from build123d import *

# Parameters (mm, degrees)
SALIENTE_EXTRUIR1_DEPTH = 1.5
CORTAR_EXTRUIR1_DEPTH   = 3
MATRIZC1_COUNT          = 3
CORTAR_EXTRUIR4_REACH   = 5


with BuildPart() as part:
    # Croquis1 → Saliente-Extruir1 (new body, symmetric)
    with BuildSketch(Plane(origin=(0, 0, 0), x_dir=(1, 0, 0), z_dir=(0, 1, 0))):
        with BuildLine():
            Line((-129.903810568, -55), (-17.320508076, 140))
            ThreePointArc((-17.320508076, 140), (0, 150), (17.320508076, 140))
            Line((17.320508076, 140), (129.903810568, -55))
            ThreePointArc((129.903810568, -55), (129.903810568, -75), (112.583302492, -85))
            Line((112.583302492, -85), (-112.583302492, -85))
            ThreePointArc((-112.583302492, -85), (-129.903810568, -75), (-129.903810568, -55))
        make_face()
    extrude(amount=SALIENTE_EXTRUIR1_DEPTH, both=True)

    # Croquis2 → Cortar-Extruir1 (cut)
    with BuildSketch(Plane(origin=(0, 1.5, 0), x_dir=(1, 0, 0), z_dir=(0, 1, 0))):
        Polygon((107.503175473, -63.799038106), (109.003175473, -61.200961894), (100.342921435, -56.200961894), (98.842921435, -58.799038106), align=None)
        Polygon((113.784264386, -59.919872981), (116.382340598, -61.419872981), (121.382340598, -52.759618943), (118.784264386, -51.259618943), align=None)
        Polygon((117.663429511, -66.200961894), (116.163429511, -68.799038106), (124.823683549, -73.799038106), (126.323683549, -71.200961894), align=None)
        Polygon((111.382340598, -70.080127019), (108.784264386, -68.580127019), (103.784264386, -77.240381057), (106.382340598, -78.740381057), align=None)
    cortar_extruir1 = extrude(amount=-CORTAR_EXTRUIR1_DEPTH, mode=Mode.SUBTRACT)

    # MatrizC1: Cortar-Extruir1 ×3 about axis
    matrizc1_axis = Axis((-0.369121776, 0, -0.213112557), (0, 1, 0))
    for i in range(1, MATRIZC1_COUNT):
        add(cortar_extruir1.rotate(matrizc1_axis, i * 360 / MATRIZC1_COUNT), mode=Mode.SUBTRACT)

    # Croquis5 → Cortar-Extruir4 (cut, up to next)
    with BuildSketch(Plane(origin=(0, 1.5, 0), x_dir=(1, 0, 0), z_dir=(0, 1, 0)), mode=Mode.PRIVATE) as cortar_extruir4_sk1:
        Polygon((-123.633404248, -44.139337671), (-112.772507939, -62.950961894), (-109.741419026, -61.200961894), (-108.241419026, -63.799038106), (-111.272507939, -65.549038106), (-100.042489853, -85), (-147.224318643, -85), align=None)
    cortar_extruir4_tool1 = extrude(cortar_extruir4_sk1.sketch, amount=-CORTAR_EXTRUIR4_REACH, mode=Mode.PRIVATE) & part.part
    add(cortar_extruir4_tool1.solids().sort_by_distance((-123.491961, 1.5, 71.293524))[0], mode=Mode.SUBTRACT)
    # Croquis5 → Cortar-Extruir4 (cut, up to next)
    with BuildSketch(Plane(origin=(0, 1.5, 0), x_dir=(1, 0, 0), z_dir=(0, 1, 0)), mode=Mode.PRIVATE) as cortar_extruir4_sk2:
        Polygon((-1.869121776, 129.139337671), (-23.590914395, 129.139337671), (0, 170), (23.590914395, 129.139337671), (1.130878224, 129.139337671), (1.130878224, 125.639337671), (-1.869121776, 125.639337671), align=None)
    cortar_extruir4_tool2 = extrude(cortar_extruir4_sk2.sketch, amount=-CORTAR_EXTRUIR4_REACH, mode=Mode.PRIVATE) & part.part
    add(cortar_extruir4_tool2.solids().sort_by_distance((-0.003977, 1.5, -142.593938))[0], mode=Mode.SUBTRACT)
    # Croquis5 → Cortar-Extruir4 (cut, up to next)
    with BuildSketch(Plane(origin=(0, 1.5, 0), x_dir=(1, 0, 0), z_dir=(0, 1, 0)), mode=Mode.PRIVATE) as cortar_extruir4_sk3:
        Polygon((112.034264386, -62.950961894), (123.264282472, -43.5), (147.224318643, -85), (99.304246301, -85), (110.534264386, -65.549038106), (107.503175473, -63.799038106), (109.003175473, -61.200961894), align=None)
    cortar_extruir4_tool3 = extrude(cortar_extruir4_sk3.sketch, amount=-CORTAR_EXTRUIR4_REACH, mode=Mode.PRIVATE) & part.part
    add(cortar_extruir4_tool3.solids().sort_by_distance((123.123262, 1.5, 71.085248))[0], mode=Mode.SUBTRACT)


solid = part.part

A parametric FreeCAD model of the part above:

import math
import FreeCAD as App
import Part
import Sketcher
Q = App.Units.Quantity


def add_polygon(sketch, points):
    """Adds a closed chain of lines whose ends are joined by coincident constraints."""
    first, n = sketch.GeometryCount, len(points)
    for a, b in zip(points, points[1:] + points[:1]):
        sketch.addGeometry(Part.LineSegment(App.Vector(*a, 0), App.Vector(*b, 0)), False)
    for i in range(n):
        sketch.addConstraint(Sketcher.Constraint("Coincident", first + i, 2, first + (i + 1) % n, 1))

doc = App.newDocument("Part")
body = doc.addObject("PartDesign::Body", "Body")

# Sketch on XZ plane
sketch1 = body.newObject("Sketcher::SketchObject", "Sketch")
sketch1.AttachmentSupport = (doc.getObject("XZ_Plane"), [""])
sketch1.MapMode = "FlatFace"
sketch1.addGeometry(Part.LineSegment(App.Vector(-17, -140, 0), App.Vector(-130, 55, 0)), False)
sketch1.addGeometry(Part.ArcOfCircle(Part.Circle(App.Vector(-113, 65, 0), App.Vector(0, 0, 1), 20), math.radians(90), math.radians(210)), False)
sketch1.addGeometry(Part.LineSegment(App.Vector(-113, 85, 0), App.Vector(113, 85, 0)), False)
sketch1.addGeometry(Part.ArcOfCircle(Part.Circle(App.Vector(113, 65, 0), App.Vector(0, 0, 1), 20), math.radians(-30), math.radians(90)), False)
sketch1.addGeometry(Part.LineSegment(App.Vector(130, 55, 0), App.Vector(17, -140, 0)), False)
sketch1.addGeometry(Part.ArcOfCircle(Part.Circle(App.Vector(0, -130, 0), App.Vector(0, 0, 1), 20), math.radians(-150), math.radians(-30)), False)
sketch1.addConstraint(Sketcher.Constraint("Tangent", 0, 2, 1, 2))
sketch1.addConstraint(Sketcher.Constraint("Tangent", 1, 1, 2, 1))
sketch1.addConstraint(Sketcher.Constraint("Tangent", 2, 2, 3, 2))
sketch1.addConstraint(Sketcher.Constraint("Tangent", 3, 1, 4, 1))
sketch1.addConstraint(Sketcher.Constraint("Tangent", 4, 2, 5, 2))
sketch1.addConstraint(Sketcher.Constraint("Tangent", 5, 1, 0, 1))
sketch1.addConstraint(Sketcher.Constraint("Horizontal", 2))
sketch1.addConstraint(Sketcher.Constraint("Equal", 1, 3))
sketch1.addConstraint(Sketcher.Constraint("Equal", 3, 5))
sketch1.addConstraint(Sketcher.Constraint("Symmetric", 0, 2, 3, 1, -2))
sketch1.addConstraint(Sketcher.Constraint("Radius", 1, Q("20 mm")))
sketch1.addConstraint(Sketcher.Constraint("Angle", 0, Q("120 deg")))
sketch1.addConstraint(Sketcher.Constraint("DistanceY", -1, 1, 1, 3, Q("65 mm")))
sketch1.addConstraint(Sketcher.Constraint("DistanceY", 5, 3, -1, 1, Q("130 mm")))
pad1 = body.newObject("PartDesign::Pad", "Pad")
pad1.Profile = sketch1
pad1.Length = 3
pad1.Midplane = True

# Sketch on XZ plane
sketch2 = body.newObject("Sketcher::SketchObject", "Sketch001")
sketch2.AttachmentSupport = (doc.getObject("XZ_Plane"), [""])
sketch2.MapMode = "FlatFace"
sketch2.AttachmentOffset = App.Placement(App.Vector(0, 0, -1.5), App.Rotation())
add_polygon(sketch2, [(107.5, 63.8), (109, 61.2), (100.3, 56.2), (98.8, 58.8)])  # lines 0-3
add_polygon(sketch2, [(113.8, 59.9), (116.4, 61.4), (121.4, 52.8), (118.8, 51.3)])  # lines 4-7
add_polygon(sketch2, [(117.7, 66.2), (116.2, 68.8), (124.8, 73.8), (126.3, 71.2)])  # lines 8-11
add_polygon(sketch2, [(111.4, 70.1), (108.8, 68.6), (103.8, 77.2), (106.4, 78.7)])  # lines 12-15
sketch2.addConstraint(Sketcher.Constraint("Perpendicular", 0, 1))
sketch2.addConstraint(Sketcher.Constraint("Perpendicular", 1, 2))
sketch2.addConstraint(Sketcher.Constraint("Perpendicular", 2, 3))
sketch2.addConstraint(Sketcher.Constraint("Parallel", 3, 4))
sketch2.addConstraint(Sketcher.Constraint("Perpendicular", 4, 5))
sketch2.addConstraint(Sketcher.Constraint("Perpendicular", 5, 6))
sketch2.addConstraint(Sketcher.Constraint("Perpendicular", 6, 7))
sketch2.addConstraint(Sketcher.Constraint("Parallel", 7, 8))
sketch2.addConstraint(Sketcher.Constraint("Perpendicular", 8, 9))
sketch2.addConstraint(Sketcher.Constraint("Perpendicular", 9, 10))
sketch2.addConstraint(Sketcher.Constraint("Perpendicular", 10, 11))
sketch2.addConstraint(Sketcher.Constraint("Parallel", 11, 12))
sketch2.addConstraint(Sketcher.Constraint("Perpendicular", 12, 13))
sketch2.addConstraint(Sketcher.Constraint("Perpendicular", 13, 14))
sketch2.addConstraint(Sketcher.Constraint("Perpendicular", 14, 15))
sketch2.addConstraint(Sketcher.Constraint("Equal", 2, 4))
sketch2.addConstraint(Sketcher.Constraint("Equal", 3, 5))
sketch2.addConstraint(Sketcher.Constraint("Equal", 6, 8))
sketch2.addConstraint(Sketcher.Constraint("Equal", 7, 9))
sketch2.addConstraint(Sketcher.Constraint("Equal", 10, 12))
sketch2.addConstraint(Sketcher.Constraint("Equal", 11, 13))
sketch2.addConstraint(Sketcher.Constraint("Angle", 0, Q("-60 deg")))
sketch2.addConstraint(Sketcher.Constraint("Distance", 0, Q("3 mm")))
sketch2.addConstraint(Sketcher.Constraint("Distance", 1, Q("10 mm")))
sketch2.addConstraint(Sketcher.Constraint("DistanceY", 3, 2, 8, 2, Q("5 mm")))
sketch2.addConstraint(Sketcher.Constraint("DistanceX", 12, 2, 7, 2, Q("5 mm")))
sketch2.addConstraint(Sketcher.Constraint("DistanceY", -1, 1, 0, 2, Q("61.200962 mm")))
sketch2.addConstraint(Sketcher.Constraint("DistanceX", -1, 1, 1, 2, Q("100.342921 mm")))
sketch2.addConstraint(Sketcher.Constraint("DistanceX", -1, 1, 4, 2, Q("116.382341 mm")))
sketch2.addConstraint(Sketcher.Constraint("DistanceY", -1, 1, 5, 2, Q("52.759619 mm")))
sketch2.addConstraint(Sketcher.Constraint("DistanceX", -1, 1, 8, 2, Q("116.16343 mm")))
sketch2.addConstraint(Sketcher.Constraint("DistanceY", -1, 1, 13, 2, Q("77.240381 mm")))
pocket1 = body.newObject("PartDesign::Pocket", "Pocket")
pocket1.Profile = sketch2
pocket1.Length = 3
pocket1.Reversed = True
doc.recompute()

datumline = body.newObject("PartDesign::Line", "DatumLine")
datumline.Placement = App.Placement(App.Vector(-0.369122, 0, -0.213113), App.Rotation(App.Vector(0, 0, 1), App.Vector(0, 1, 0)))
polarpattern = body.newObject("PartDesign::PolarPattern", "PolarPattern")
polarpattern.Originals = [pocket1]
polarpattern.Axis = (datumline, [""])
polarpattern.Angle = 360
polarpattern.Occurrences = 3
body.Tip = polarpattern

# Sketch on XZ plane
sketch3 = body.newObject("Sketcher::SketchObject", "Sketch002")
sketch3.AttachmentSupport = (doc.getObject("XZ_Plane"), [""])
sketch3.MapMode = "FlatFace"
sketch3.AttachmentOffset = App.Placement(App.Vector(0, 0, -1.5), App.Rotation())
add_polygon(sketch3, [(-112.8, 63), (-123.6, 44.1), (-147.2, 85), (-100, 85), (-111.3, 65.5), (-108.2, 63.8), (-109.7, 61.2)])  # lines 0-6
sketch3.addConstraint(Sketcher.Constraint("Horizontal", 2))
sketch3.addConstraint(Sketcher.Constraint("Parallel", 0, 3))
sketch3.addConstraint(Sketcher.Constraint("Perpendicular", 3, 4))
sketch3.addConstraint(Sketcher.Constraint("Perpendicular", 4, 5))
sketch3.addConstraint(Sketcher.Constraint("Perpendicular", 5, 6))
sketch3.addConstraint(Sketcher.Constraint("Equal", 4, 6))
sketch3.addConstraint(Sketcher.Constraint("Angle", 0, Q("-120 deg")))
sketch3.addConstraint(Sketcher.Constraint("Angle", 1, Q("120 deg")))
sketch3.addConstraint(Sketcher.Constraint("Distance", 5, Q("3 mm")))
sketch3.addConstraint(Sketcher.Constraint("DistanceY", -1, 1, 1, 2, Q("85 mm")))
sketch3.addConstraint(Sketcher.Constraint("Distance", 4, Q("3.5 mm")))
sketch3.addConstraint(Sketcher.Constraint("DistanceX", 2, 1, 2, 2, Q("47.181829 mm")))
sketch3.addConstraint(Sketcher.Constraint("DistanceY", 0, 2, 3, 2, Q("21.4097 mm")))
sketch3.addConstraint(Sketcher.Constraint("DistanceX", 1, 2, -1, 1, Q("147.224319 mm")))
pocket2 = body.newObject("PartDesign::Pocket", "Pocket001")
pocket2.Profile = sketch3
pocket2.Length = 3
pocket2.Reversed = True

# Sketch on XZ plane
sketch4 = body.newObject("Sketcher::SketchObject", "Sketch003")
sketch4.AttachmentSupport = (doc.getObject("XZ_Plane"), [""])
sketch4.MapMode = "FlatFace"
sketch4.AttachmentOffset = App.Placement(App.Vector(0, 0, -1.5), App.Rotation())
add_polygon(sketch4, [(-23.6, -129.1), (-1.9, -129.1), (-1.9, -125.6), (1.1, -125.6), (1.1, -129.1), (23.6, -129.1), (0, -170)])  # lines 0-6
sketch4.addConstraint(Sketcher.Constraint("Horizontal", 0))
sketch4.addConstraint(Sketcher.Constraint("Vertical", 1))
sketch4.addConstraint(Sketcher.Constraint("Horizontal", 2))
sketch4.addConstraint(Sketcher.Constraint("Vertical", 3))
sketch4.addConstraint(Sketcher.Constraint("Horizontal", 4))
sketch4.addConstraint(Sketcher.Constraint("Symmetric", 4, 2, 6, 2, -2))
sketch4.addConstraint(Sketcher.Constraint("PointOnObject", 5, 2, -2))
sketch4.addConstraint(Sketcher.Constraint("DistanceX", 2, 1, 2, 2, Q("3 mm")))
sketch4.addConstraint(Sketcher.Constraint("Angle", 5, Q("-120 deg")))
sketch4.addConstraint(Sketcher.Constraint("DistanceY", 1, 1, 1, 2, Q("3.5 mm")))
sketch4.addConstraint(Sketcher.Constraint("DistanceY", 5, 2, -1, 1, Q("170 mm")))
sketch4.addConstraint(Sketcher.Constraint("Distance", 5, Q("47.181829 mm")))
sketch4.addConstraint(Sketcher.Constraint("DistanceX", 0, 1, 0, 2, Q("21.721793 mm")))
pocket3 = body.newObject("PartDesign::Pocket", "Pocket002")
pocket3.Profile = sketch4
pocket3.Length = 3
pocket3.Reversed = True

# Sketch on XZ plane
sketch5 = body.newObject("Sketcher::SketchObject", "Sketch004")
sketch5.AttachmentSupport = (doc.getObject("XZ_Plane"), [""])
sketch5.MapMode = "FlatFace"
sketch5.AttachmentOffset = App.Placement(App.Vector(0, 0, -1.5), App.Rotation())
add_polygon(sketch5, [(123.3, 43.5), (112, 63), (109, 61.2), (107.5, 63.8), (110.5, 65.5), (99.3, 85), (147.2, 85)])  # lines 0-6
sketch5.addConstraint(Sketcher.Constraint("Horizontal", 5))
sketch5.addConstraint(Sketcher.Constraint("Perpendicular", 0, 1))
sketch5.addConstraint(Sketcher.Constraint("Perpendicular", 1, 2))
sketch5.addConstraint(Sketcher.Constraint("Perpendicular", 2, 3))
sketch5.addConstraint(Sketcher.Constraint("Perpendicular", 3, 4))
sketch5.addConstraint(Sketcher.Constraint("Equal", 1, 3))
sketch5.addConstraint(Sketcher.Constraint("Equal", 0, 4))
sketch5.addConstraint(Sketcher.Constraint("Angle", 0, Q("120 deg")))
sketch5.addConstraint(Sketcher.Constraint("Angle", 6, Q("-120 deg")))
sketch5.addConstraint(Sketcher.Constraint("Distance", 2, Q("3 mm")))
sketch5.addConstraint(Sketcher.Constraint("DistanceY", -1, 1, 4, 2, Q("85 mm")))
sketch5.addConstraint(Sketcher.Constraint("Distance", 1, Q("3.5 mm")))
sketch5.addConstraint(Sketcher.Constraint("DistanceY", -1, 1, 6, 2, Q("43.5 mm")))
sketch5.addConstraint(Sketcher.Constraint("DistanceX", -1, 1, 5, 2, Q("147.224319 mm")))
pocket4 = body.newObject("PartDesign::Pocket", "Pocket003")
pocket4.Profile = sketch5
pocket4.Length = 3
pocket4.Reversed = True

doc.recompute()
